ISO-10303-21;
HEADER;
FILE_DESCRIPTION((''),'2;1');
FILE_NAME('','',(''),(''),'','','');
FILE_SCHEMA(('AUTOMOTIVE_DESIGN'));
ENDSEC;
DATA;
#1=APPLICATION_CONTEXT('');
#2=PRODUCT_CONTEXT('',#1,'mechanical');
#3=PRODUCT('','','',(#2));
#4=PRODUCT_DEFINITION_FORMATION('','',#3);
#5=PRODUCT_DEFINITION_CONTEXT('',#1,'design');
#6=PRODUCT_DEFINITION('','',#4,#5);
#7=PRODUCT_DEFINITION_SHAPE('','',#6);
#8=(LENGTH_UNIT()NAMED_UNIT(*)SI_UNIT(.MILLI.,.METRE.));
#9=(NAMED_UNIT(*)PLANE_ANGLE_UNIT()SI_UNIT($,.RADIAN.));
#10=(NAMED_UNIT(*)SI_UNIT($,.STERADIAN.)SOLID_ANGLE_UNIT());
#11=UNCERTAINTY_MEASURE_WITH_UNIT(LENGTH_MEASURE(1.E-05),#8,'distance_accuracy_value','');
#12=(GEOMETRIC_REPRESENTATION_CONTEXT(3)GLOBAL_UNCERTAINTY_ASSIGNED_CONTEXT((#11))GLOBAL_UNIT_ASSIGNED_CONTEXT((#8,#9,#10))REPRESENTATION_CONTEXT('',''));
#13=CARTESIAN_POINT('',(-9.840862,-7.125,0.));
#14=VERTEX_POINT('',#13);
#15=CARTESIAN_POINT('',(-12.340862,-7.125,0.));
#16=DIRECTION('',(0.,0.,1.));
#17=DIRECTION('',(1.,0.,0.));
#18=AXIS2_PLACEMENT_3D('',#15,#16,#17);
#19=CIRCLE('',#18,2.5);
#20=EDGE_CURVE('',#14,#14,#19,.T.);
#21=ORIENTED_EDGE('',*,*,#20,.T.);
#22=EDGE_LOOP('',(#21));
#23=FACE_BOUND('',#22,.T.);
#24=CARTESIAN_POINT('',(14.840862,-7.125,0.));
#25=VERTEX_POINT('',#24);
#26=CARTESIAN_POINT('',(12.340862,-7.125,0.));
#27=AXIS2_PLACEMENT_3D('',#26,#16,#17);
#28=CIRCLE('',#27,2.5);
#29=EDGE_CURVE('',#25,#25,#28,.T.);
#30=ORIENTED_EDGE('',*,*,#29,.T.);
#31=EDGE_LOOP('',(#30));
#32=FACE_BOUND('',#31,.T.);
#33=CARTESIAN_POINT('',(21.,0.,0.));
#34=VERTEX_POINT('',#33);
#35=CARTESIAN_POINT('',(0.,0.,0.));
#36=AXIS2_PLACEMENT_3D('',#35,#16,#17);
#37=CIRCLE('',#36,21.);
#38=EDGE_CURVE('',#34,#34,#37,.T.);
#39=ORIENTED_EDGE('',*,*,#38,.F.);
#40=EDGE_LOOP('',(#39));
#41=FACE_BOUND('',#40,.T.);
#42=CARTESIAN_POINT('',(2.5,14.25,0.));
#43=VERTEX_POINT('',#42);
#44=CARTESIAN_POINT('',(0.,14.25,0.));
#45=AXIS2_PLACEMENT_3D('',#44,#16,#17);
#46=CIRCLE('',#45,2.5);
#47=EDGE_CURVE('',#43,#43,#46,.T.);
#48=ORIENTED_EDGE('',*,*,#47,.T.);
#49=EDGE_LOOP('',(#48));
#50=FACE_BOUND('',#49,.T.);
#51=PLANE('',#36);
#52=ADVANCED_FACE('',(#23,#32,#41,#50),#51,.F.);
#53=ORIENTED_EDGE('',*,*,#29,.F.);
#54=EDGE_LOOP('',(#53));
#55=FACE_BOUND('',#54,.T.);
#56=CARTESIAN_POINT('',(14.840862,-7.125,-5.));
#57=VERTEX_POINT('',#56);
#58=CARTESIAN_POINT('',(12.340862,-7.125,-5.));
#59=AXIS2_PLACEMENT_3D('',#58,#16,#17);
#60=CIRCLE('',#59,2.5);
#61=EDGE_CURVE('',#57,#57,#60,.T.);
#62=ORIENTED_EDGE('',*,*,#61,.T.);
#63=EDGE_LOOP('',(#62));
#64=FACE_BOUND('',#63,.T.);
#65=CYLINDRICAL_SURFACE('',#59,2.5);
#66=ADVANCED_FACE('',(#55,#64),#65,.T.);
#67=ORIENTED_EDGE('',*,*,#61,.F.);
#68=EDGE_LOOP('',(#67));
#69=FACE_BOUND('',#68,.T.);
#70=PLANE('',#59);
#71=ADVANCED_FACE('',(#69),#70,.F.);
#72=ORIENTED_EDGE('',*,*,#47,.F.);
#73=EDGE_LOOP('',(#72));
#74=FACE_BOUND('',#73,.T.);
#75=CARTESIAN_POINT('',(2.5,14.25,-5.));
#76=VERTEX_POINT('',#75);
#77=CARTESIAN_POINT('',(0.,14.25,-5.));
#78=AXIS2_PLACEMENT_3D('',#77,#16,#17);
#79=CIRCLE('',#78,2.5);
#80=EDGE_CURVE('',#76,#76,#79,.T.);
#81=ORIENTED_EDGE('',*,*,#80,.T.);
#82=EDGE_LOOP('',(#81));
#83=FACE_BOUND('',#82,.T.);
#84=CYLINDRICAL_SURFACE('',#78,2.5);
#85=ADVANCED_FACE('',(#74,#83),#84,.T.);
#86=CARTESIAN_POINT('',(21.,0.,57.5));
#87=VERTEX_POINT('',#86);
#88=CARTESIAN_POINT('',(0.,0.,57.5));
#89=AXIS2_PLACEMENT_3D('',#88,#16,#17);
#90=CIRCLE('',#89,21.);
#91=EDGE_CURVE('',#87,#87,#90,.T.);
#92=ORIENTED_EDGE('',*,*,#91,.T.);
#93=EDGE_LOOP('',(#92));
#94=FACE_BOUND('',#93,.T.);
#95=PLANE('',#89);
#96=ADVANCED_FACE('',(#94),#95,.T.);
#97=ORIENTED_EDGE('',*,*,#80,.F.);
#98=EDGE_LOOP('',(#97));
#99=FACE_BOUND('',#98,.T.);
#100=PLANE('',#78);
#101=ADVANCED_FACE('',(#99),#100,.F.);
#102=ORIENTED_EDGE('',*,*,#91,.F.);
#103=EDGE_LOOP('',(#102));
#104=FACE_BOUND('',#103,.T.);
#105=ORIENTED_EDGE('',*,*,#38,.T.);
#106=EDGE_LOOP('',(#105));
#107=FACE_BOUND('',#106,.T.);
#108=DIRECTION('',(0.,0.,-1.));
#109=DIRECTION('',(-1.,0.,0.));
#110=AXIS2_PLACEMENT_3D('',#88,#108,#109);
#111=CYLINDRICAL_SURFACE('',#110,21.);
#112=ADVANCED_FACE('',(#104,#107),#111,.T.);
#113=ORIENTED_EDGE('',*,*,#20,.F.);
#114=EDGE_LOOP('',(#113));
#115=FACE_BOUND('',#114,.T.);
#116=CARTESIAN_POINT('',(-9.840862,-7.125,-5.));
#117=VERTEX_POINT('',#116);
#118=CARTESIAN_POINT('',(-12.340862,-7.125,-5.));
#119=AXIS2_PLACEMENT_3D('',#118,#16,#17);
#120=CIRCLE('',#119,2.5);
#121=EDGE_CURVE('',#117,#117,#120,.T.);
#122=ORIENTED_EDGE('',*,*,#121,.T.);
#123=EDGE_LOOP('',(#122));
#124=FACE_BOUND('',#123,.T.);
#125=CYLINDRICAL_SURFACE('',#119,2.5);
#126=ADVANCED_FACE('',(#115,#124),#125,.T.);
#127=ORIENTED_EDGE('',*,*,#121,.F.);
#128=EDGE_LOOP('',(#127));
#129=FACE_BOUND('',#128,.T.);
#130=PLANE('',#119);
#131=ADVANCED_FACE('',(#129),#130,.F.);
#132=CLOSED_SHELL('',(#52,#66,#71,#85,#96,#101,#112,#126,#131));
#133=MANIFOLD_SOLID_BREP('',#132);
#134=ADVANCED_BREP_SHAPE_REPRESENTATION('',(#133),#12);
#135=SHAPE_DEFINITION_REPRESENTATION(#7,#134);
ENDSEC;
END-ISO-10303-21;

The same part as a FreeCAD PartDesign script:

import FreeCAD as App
import Part
import Sketcher
Q = App.Units.Quantity

doc = App.newDocument("Part")
params = doc.addObject("Spreadsheet::Sheet", "Params")
for row, (alias, value) in enumerate([
    ("sketch1_diameter", "42 mm"),
    ("pad1_length", "57.5 mm"),
    ("sketch2_diameter", "5 mm"),
    ("pad2_length", "5 mm"),
], start=1):
    params.set(f"A{row}", alias)
    params.set(f"B{row}", "=" + value)
    params.setAlias(f"B{row}", alias)

body = doc.addObject("PartDesign::Body", "Body")

# Sketch on XY plane
sketch1 = body.newObject("Sketcher::SketchObject", "Sketch")
sketch1.AttachmentSupport = (doc.getObject("XY_Plane"), [""])
sketch1.MapMode = "FlatFace"
sketch1.addGeometry(Part.Circle(App.Vector(0, 0, 0), App.Vector(0, 0, 1), 21), False)
sketch1.addConstraint(Sketcher.Constraint("Coincident", 0, 3, -1, 1))
sketch1.addConstraint(Sketcher.Constraint("Diameter", 0, Q("42 mm")))
sketch1.setExpression("Constraints[1]", "Params.sketch1_diameter")
pad1 = body.newObject("PartDesign::Pad", "Pad")
pad1.Profile = sketch1
pad1.setExpression("Length", "Params.pad1_length")

# Sketch on XY plane
sketch2 = body.newObject("Sketcher::SketchObject", "Sketch001")
sketch2.AttachmentSupport = (doc.getObject("XY_Plane"), [""])
sketch2.MapMode = "FlatFace"
sketch2.addGeometry(Part.Circle(App.Vector(0, 14.25, 0), App.Vector(0, 0, 1), 2.5), False)
sketch2.addGeometry(Part.Circle(App.Vector(12.340862, -7.125, 0), App.Vector(0, 0, 1), 2.5), False)
sketch2.addGeometry(Part.Circle(App.Vector(-12.340862, -7.125, 0), App.Vector(0, 0, 1), 2.5), False)
sketch2.addConstraint(Sketcher.Constraint("Equal", 0, 1))
sketch2.addConstraint(Sketcher.Constraint("Equal", 1, 2))
sketch2.addConstraint(Sketcher.Constraint("Symmetric", 1, 3, 2, 3, -2))
sketch2.addConstraint(Sketcher.Constraint("PointOnObject", 0, 3, -2))
sketch2.addConstraint(Sketcher.Constraint("Diameter", 0, Q("5 mm")))
sketch2.addConstraint(Sketcher.Constraint("DistanceY", -1, 1, 0, 3, Q("14.25 mm")))
sketch2.addConstraint(Sketcher.Constraint("DistanceY", 1, 3, -1, 1, Q("7.125 mm")))
sketch2.addConstraint(Sketcher.Constraint("DistanceX", -1, 1, 1, 3, Q("12.340862 mm")))
sketch2.setExpression("Constraints[4]", "Params.sketch2_diameter")
pad2 = body.newObject("PartDesign::Pad", "Pad001")
pad2.Profile = sketch2
pad2.setExpression("Length", "Params.pad2_length")
pad2.Reversed = True

doc.recompute()
